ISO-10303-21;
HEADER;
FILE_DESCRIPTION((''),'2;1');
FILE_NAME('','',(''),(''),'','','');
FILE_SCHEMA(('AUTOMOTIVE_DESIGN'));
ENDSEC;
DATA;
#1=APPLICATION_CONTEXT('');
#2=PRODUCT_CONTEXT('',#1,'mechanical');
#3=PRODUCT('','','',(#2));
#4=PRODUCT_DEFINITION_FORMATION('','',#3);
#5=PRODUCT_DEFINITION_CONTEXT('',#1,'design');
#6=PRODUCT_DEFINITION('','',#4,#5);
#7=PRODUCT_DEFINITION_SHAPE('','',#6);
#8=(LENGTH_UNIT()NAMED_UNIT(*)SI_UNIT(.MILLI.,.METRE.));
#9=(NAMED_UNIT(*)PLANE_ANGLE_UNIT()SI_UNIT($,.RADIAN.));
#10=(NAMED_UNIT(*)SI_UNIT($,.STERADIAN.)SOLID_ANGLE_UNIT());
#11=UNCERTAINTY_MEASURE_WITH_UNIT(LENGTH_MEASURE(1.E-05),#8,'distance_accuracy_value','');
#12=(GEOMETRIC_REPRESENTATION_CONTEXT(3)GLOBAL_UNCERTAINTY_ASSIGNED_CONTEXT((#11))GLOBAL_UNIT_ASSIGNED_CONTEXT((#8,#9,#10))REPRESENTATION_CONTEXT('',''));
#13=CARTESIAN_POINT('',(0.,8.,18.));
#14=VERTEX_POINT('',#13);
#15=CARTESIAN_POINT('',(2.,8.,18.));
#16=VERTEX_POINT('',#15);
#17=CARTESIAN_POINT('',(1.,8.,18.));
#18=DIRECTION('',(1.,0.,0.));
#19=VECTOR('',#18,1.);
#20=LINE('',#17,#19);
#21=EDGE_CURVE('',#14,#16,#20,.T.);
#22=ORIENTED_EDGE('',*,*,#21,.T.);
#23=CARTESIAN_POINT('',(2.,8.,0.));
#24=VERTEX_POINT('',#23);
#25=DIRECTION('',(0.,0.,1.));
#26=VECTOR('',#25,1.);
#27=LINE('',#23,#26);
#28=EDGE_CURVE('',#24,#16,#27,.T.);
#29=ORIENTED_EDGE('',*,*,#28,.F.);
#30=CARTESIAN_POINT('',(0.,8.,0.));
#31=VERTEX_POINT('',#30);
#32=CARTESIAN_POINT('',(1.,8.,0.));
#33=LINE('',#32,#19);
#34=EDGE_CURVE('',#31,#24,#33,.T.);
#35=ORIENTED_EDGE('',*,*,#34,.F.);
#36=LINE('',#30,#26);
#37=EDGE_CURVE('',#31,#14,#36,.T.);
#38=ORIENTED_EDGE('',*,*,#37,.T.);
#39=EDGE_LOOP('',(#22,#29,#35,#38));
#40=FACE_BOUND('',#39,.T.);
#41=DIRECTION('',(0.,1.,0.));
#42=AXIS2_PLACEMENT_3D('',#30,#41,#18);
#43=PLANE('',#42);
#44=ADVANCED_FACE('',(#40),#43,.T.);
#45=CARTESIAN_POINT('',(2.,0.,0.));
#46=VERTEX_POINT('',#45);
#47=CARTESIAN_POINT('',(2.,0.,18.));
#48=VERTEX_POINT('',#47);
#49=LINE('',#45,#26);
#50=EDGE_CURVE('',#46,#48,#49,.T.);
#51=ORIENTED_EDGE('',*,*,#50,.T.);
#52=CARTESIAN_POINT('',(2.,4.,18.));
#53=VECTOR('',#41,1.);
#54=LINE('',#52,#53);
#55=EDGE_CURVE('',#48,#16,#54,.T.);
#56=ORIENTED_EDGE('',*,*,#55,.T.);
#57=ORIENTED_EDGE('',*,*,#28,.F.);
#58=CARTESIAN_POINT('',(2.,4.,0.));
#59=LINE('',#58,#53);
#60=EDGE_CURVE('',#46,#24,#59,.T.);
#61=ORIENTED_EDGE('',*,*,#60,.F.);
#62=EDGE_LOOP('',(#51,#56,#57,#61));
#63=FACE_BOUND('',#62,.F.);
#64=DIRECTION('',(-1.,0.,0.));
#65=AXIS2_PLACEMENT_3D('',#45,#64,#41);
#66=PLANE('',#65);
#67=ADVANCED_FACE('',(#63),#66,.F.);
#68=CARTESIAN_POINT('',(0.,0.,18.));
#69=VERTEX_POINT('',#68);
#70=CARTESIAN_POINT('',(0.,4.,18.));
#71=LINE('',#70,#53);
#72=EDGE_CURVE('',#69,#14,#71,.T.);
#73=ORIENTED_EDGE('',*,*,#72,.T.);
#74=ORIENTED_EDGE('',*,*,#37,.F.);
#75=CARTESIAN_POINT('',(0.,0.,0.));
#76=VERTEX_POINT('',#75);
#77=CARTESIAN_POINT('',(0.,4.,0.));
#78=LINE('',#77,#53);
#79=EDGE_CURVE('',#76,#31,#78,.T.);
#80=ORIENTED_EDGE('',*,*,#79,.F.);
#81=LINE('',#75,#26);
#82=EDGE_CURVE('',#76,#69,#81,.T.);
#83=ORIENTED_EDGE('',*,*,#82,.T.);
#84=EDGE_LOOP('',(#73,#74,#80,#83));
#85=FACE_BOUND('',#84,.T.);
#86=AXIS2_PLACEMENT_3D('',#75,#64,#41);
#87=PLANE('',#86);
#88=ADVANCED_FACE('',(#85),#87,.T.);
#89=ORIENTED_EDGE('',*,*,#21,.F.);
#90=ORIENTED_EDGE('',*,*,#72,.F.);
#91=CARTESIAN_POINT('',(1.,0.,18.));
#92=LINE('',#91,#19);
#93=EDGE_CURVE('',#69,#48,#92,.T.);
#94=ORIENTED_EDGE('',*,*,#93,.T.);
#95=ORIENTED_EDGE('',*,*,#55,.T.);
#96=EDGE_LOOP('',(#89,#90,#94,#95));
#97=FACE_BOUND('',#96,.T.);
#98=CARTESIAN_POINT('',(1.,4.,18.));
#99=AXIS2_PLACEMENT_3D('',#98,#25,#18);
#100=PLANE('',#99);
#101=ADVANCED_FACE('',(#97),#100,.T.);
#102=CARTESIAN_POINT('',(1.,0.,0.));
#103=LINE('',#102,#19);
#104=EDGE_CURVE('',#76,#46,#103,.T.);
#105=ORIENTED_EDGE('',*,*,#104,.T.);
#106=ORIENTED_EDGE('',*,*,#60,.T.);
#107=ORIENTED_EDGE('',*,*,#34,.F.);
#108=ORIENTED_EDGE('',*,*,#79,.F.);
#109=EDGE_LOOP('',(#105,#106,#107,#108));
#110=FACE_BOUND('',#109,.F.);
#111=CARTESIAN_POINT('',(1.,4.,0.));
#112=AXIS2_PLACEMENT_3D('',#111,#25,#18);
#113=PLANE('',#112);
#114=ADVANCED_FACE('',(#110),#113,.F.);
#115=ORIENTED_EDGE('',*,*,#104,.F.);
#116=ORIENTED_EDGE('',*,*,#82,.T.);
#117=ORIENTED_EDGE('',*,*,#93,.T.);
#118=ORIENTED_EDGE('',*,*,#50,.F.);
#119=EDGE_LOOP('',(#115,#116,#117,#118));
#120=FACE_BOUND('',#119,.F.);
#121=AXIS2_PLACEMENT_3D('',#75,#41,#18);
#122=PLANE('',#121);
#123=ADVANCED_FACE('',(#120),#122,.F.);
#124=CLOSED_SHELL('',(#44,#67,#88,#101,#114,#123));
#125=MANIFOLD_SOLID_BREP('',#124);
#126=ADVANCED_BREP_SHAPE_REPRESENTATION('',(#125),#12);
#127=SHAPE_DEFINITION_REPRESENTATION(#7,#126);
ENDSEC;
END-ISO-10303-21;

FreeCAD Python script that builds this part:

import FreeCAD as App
import Part
import Sketcher
Q = App.Units.Quantity

doc = App.newDocument("Part")
params = doc.addObject("Spreadsheet::Sheet", "Params")
for row, (alias, value) in enumerate([
    ("sketch1_width", "2 mm"),
    ("sketch1_height", "8 mm"),
    ("pad1_length", "18 mm"),
], start=1):
    params.set(f"A{row}", alias)
    params.set(f"B{row}", "=" + value)
    params.setAlias(f"B{row}", alias)

body = doc.addObject("PartDesign::Body", "Body")

sketch1 = body.newObject("Sketcher::SketchObject", "Sketch")
sketch1.AttachmentSupport = (doc.getObject("XY_Plane"), [""])
sketch1.MapMode = "FlatFace"
sketch1.addGeometry([
    Part.LineSegment(App.Vector(0, 8, 0), App.Vector(0, 0, 0)),
    Part.LineSegment(App.Vector(0, 0, 0), App.Vector(2, 0, 0)),
    Part.LineSegment(App.Vector(2, 0, 0), App.Vector(2, 8, 0)),
    Part.LineSegment(App.Vector(2, 8, 0), App.Vector(0, 8, 0)),
], False)
sketch1.addConstraint([
    Sketcher.Constraint("Coincident", 0, 2, 1, 1),
    Sketcher.Constraint("Coincident", 1, 2, 2, 1),
    Sketcher.Constraint("Coincident", 2, 2, 3, 1),
    Sketcher.Constraint("Coincident", 3, 2, 0, 1),
    Sketcher.Constraint("Vertical", 0),
    Sketcher.Constraint("Horizontal", 1),
    Sketcher.Constraint("Vertical", 2),
    Sketcher.Constraint("Horizontal", 3),
    Sketcher.Constraint("Coincident", 0, 2, -1, 1),
    Sketcher.Constraint("DistanceX", 1, 1, 1, 2, Q("2 mm")),
    Sketcher.Constraint("DistanceY", 0, 2, 0, 1, Q("8 mm")),
])
sketch1.setExpression("Constraints[9]", "Params.sketch1_width")
sketch1.setExpression("Constraints[10]", "Params.sketch1_height")
pad1 = body.newObject("PartDesign::Pad", "Pad")
pad1.Profile = sketch1
pad1.setExpression("Length", "Params.pad1_length")

doc.recompute()
